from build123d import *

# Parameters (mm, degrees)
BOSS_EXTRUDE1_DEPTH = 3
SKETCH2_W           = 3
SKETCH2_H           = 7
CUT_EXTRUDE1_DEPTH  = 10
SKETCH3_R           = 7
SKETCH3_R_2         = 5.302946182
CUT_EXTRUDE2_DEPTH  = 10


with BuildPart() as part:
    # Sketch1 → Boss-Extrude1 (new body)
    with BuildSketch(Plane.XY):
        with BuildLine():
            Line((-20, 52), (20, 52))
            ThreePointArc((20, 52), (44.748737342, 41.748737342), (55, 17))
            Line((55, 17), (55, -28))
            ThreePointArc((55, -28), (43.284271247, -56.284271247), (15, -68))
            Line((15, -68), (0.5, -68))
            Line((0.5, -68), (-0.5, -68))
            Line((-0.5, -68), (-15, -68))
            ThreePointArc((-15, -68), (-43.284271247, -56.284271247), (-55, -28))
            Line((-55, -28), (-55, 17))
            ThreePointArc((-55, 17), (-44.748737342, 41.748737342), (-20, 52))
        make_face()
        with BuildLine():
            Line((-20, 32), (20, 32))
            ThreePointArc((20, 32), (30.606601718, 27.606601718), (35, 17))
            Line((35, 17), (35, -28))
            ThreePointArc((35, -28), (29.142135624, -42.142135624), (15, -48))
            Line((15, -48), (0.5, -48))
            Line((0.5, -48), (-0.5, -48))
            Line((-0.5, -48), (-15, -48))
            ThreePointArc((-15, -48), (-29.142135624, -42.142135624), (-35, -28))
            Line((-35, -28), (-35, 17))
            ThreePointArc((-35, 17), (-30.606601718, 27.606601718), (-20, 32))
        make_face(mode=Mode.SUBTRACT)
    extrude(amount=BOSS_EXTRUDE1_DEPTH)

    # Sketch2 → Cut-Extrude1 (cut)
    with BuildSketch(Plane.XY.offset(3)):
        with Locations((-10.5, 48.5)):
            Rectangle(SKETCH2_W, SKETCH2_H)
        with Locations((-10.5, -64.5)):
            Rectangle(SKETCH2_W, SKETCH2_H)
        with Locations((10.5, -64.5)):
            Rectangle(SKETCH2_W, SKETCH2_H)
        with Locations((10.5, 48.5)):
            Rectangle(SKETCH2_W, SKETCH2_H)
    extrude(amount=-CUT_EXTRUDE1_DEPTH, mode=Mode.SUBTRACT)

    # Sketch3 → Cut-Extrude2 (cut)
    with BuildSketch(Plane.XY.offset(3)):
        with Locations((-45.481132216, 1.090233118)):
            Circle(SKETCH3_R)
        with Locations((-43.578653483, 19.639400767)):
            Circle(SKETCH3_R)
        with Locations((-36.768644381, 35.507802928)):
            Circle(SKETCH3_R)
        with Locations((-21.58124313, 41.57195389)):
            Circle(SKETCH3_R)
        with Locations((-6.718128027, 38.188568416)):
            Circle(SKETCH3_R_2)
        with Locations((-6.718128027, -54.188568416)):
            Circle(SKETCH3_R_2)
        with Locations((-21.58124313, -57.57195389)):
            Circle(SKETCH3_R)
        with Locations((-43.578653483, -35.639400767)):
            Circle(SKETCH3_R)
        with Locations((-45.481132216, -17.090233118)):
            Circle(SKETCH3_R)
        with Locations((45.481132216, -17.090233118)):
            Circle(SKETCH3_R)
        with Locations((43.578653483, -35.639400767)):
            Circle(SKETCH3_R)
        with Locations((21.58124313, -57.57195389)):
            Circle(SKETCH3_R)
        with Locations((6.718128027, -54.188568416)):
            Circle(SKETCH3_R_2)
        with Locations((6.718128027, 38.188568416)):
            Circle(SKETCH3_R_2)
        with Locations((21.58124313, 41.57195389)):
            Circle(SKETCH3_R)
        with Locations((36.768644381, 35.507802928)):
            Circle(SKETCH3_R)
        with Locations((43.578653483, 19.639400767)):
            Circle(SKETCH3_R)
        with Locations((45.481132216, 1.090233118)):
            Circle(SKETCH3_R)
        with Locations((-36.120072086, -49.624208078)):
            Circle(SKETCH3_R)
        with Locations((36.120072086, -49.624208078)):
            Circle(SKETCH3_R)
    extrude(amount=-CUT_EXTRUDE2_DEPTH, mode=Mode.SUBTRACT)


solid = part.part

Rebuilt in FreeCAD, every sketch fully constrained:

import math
import FreeCAD as App
import Part
import Sketcher

V = App.Vector

doc = App.newDocument("Part")
body = doc.addObject("PartDesign::Body", "Body")

# Sketch on XY plane
sketch1 = doc.addObject("Sketcher::SketchObject", "Sketch")
body.addObject(sketch1)
sketch1.AttachmentSupport = (doc.XY_Plane, [""])
sketch1.MapMode = "FlatFace"
sketch1.addGeometry([
    Part.LineSegment(V(20, 52, 0), V(-20, 52, 0)),  # 0
    Part.ArcOfCircle(Part.Circle(V(-20, 17, 0), V(0, 0, 1), 35), math.radians(90), math.radians(180)),  # 1
    Part.LineSegment(V(-55, 17, 0), V(-55, -28, 0)),  # 2
    Part.ArcOfCircle(Part.Circle(V(-15, -28, 0), V(0, 0, 1), 40), math.radians(-180), math.radians(-90)),  # 3
    Part.LineSegment(V(-15, -68, 0), V(15, -68, 0)),  # 4
    Part.ArcOfCircle(Part.Circle(V(15, -28, 0), V(0, 0, 1), 40), math.radians(-90), math.radians(0)),  # 5
    Part.LineSegment(V(55, -28, 0), V(55, 17, 0)),  # 6
    Part.ArcOfCircle(Part.Circle(V(20, 17, 0), V(0, 0, 1), 35), math.radians(0), math.radians(90)),  # 7
    Part.LineSegment(V(-20, 32, 0), V(20, 32, 0)),  # 8
    Part.ArcOfCircle(Part.Circle(V(20, 17, 0), V(0, 0, 1), 15), math.radians(0), math.radians(90)),  # 9
    Part.LineSegment(V(35, 17, 0), V(35, -28, 0)),  # 10
    Part.ArcOfCircle(Part.Circle(V(15, -28, 0), V(0, 0, 1), 20), math.radians(-90), math.radians(0)),  # 11
    Part.LineSegment(V(15, -48, 0), V(-15, -48, 0)),  # 12
    Part.ArcOfCircle(Part.Circle(V(-15, -28, 0), V(0, 0, 1), 20), math.radians(180), math.radians(270)),  # 13
    Part.LineSegment(V(-35, -28, 0), V(-35, 17, 0)),  # 14
    Part.ArcOfCircle(Part.Circle(V(-20, 17, 0), V(0, 0, 1), 15), math.radians(90), math.radians(180)),  # 15
], False)
sketch1.addConstraint([
    Sketcher.Constraint("Tangent", 0, 2, 1, 1),
    Sketcher.Constraint("Tangent", 1, 2, 2, 1),
    Sketcher.Constraint("Tangent", 2, 2, 3, 1),
    Sketcher.Constraint("Tangent", 3, 2, 4, 1),
    Sketcher.Constraint("Tangent", 4, 2, 5, 1),
    Sketcher.Constraint("Tangent", 5, 2, 6, 1),
    Sketcher.Constraint("Tangent", 6, 2, 7, 1),
    Sketcher.Constraint("Tangent", 7, 2, 0, 1),
    Sketcher.Constraint("Tangent", 8, 2, 9, 2),
    Sketcher.Constraint("Tangent", 9, 1, 10, 1),
    Sketcher.Constraint("Tangent", 10, 2, 11, 2),
    Sketcher.Constraint("Tangent", 11, 1, 12, 1),
    Sketcher.Constraint("Tangent", 12, 2, 13, 2),
    Sketcher.Constraint("Tangent", 13, 1, 14, 1),
    Sketcher.Constraint("Tangent", 14, 2, 15, 2),
    Sketcher.Constraint("Tangent", 15, 1, 8, 1),
    Sketcher.Constraint("Horizontal", 0),
    Sketcher.Constraint("Vertical", 2),
    Sketcher.Constraint("Horizontal", 4),
    Sketcher.Constraint("Vertical", 6),
    Sketcher.Constraint("Horizontal", 8),
    Sketcher.Constraint("Vertical", 10),
    Sketcher.Constraint("Horizontal", 12),
    Sketcher.Constraint("Vertical", 14),
    Sketcher.Constraint("Coincident", 9, 3, 7, 3),
    Sketcher.Constraint("Coincident", 11, 3, 5, 3),
    Sketcher.Constraint("Coincident", 13, 3, 3, 3),
    Sketcher.Constraint("Equal", 3, 5),
    Sketcher.Constraint("Equal", 1, 7),
    Sketcher.Constraint("Equal", 9, 15),
    Sketcher.Constraint("Radius", 1, 35.0),
    Sketcher.Constraint("Radius", 3, 40.0),
    Sketcher.Constraint("Radius", 9, 15.0),
    Sketcher.Constraint("DistanceX", 0, 2, 0, 1, 40.0),
    Sketcher.Constraint("DistanceY", 2, 2, 2, 1, 45.0),
    Sketcher.Constraint("DistanceX", 1, 3, -1, 1, 20.0),
    Sketcher.Constraint("DistanceY", -1, 1, 1, 3, 17.0),
])
pad1 = doc.addObject("PartDesign::Pad", "Pad")
body.addObject(pad1)
pad1.Profile = sketch1
pad1.Length = 3

# Sketch on XY plane
sketch2 = doc.addObject("Sketcher::SketchObject", "Sketch001")
body.addObject(sketch2)
sketch2.AttachmentSupport = (doc.XY_Plane, [""])
sketch2.MapMode = "FlatFace"
sketch2.AttachmentOffset = App.Placement(V(0, 0, 3), App.Rotation())
sketch2.addGeometry([
    Part.LineSegment(V(-12, 52, 0), V(-12, 45, 0)),  # 0
    Part.LineSegment(V(-12, 45, 0), V(-9, 45, 0)),  # 1
    Part.LineSegment(V(-9, 45, 0), V(-9, 52, 0)),  # 2
    Part.LineSegment(V(-9, 52, 0), V(-12, 52, 0)),  # 3
    Part.LineSegment(V(-12, -61, 0), V(-12, -68, 0)),  # 4
    Part.LineSegment(V(-12, -68, 0), V(-9, -68, 0)),  # 5
    Part.LineSegment(V(-9, -68, 0), V(-9, -61, 0)),  # 6
    Part.LineSegment(V(-9, -61, 0), V(-12, -61, 0)),  # 7
    Part.LineSegment(V(9, -61, 0), V(9, -68, 0)),  # 8
    Part.LineSegment(V(9, -68, 0), V(12, -68, 0)),  # 9
    Part.LineSegment(V(12, -68, 0), V(12, -61, 0)),  # 10
    Part.LineSegment(V(12, -61, 0), V(9, -61, 0)),  # 11
    Part.LineSegment(V(9, 52, 0), V(9, 45, 0)),  # 12
    Part.LineSegment(V(9, 45, 0), V(12, 45, 0)),  # 13
    Part.LineSegment(V(12, 45, 0), V(12, 52, 0)),  # 14
    Part.LineSegment(V(12, 52, 0), V(9, 52, 0)),  # 15
], False)
sketch2.addConstraint([
    Sketcher.Constraint("Coincident", 0, 2, 1, 1),
    Sketcher.Constraint("Coincident", 1, 2, 2, 1),
    Sketcher.Constraint("Coincident", 2, 2, 3, 1),
    Sketcher.Constraint("Coincident", 3, 2, 0, 1),
    Sketcher.Constraint("Coincident", 4, 2, 5, 1),
    Sketcher.Constraint("Coincident", 5, 2, 6, 1),
    Sketcher.Constraint("Coincident", 6, 2, 7, 1),
    Sketcher.Constraint("Coincident", 7, 2, 4, 1),
    Sketcher.Constraint("Coincident", 8, 2, 9, 1),
    Sketcher.Constraint("Coincident", 9, 2, 10, 1),
    Sketcher.Constraint("Coincident", 10, 2, 11, 1),
    Sketcher.Constraint("Coincident", 11, 2, 8, 1),
    Sketcher.Constraint("Coincident", 12, 2, 13, 1),
    Sketcher.Constraint("Coincident", 13, 2, 14, 1),
    Sketcher.Constraint("Coincident", 14, 2, 15, 1),
    Sketcher.Constraint("Coincident", 15, 2, 12, 1),
    Sketcher.Constraint("Vertical", 0),
    Sketcher.Constraint("Horizontal", 1),
    Sketcher.Constraint("Vertical", 2),
    Sketcher.Constraint("Horizontal", 3),
    Sketcher.Constraint("Vertical", 4),
    Sketcher.Constraint("Horizontal", 5),
    Sketcher.Constraint("Vertical", 6),
    Sketcher.Constraint("Horizontal", 7),
    Sketcher.Constraint("Vertical", 8),
    Sketcher.Constraint("Horizontal", 9),
    Sketcher.Constraint("Vertical", 10),
    Sketcher.Constraint("Horizontal", 11),
    Sketcher.Constraint("Vertical", 12),
    Sketcher.Constraint("Horizontal", 13),
    Sketcher.Constraint("Vertical", 14),
    Sketcher.Constraint("Horizontal", 15),
    Sketcher.Constraint("Symmetric", 5, 2, 8, 2, -2),
    Sketcher.Constraint("Symmetric", 7, 2, 10, 2, -2),
    Sketcher.Constraint("Symmetric", 1, 2, 12, 2, -2),
    Sketcher.Constraint("Symmetric", 3, 2, 14, 2, -2),
    Sketcher.Constraint("Vertical", 3, 2, 4, 2),
    Sketcher.Constraint("Vertical", 2, 2, 5, 2),
    Sketcher.Constraint("Equal", 2, 4),
    Sketcher.Constraint("DistanceX", 1, 1, 1, 2, 3.0),
    Sketcher.Constraint("DistanceY", 0, 2, 0, 1, 7.0),
    Sketcher.Constraint("DistanceX", 0, 2, -1, 1, 12.0),
    Sketcher.Constraint("DistanceY", -1, 1, 0, 2, 45.0),
    Sketcher.Constraint("DistanceY", 4, 2, -1, 1, 68.0),
])
pocket1 = doc.addObject("PartDesign::Pocket", "Pocket")
body.addObject(pocket1)
pocket1.Profile = sketch2
pocket1.Length = 10

# Sketch on XY plane
sketch3 = doc.addObject("Sketcher::SketchObject", "Sketch002")
body.addObject(sketch3)
sketch3.AttachmentSupport = (doc.XY_Plane, [""])
sketch3.MapMode = "FlatFace"
sketch3.AttachmentOffset = App.Placement(V(0, 0, 3), App.Rotation())
sketch3.addGeometry([
    Part.Circle(V(-45, 1, 0), V(0, 0, 1), 7),  # 0
    Part.Circle(V(-44, 20, 0), V(0, 0, 1), 7),  # 1
    Part.Circle(V(-37, 36, 0), V(0, 0, 1), 7),  # 2
    Part.Circle(V(-22, 42, 0), V(0, 0, 1), 7),  # 3
    Part.Circle(V(-7, 38, 0), V(0, 0, 1), 5),  # 4
    Part.Circle(V(-7, -54, 0), V(0, 0, 1), 5),  # 5
    Part.Circle(V(-22, -58, 0), V(0, 0, 1), 7),  # 6
    Part.Circle(V(-44, -36, 0), V(0, 0, 1), 7),  # 7
    Part.Circle(V(-45, -17, 0), V(0, 0, 1), 7),  # 8
    Part.Circle(V(45, -17, 0), V(0, 0, 1), 7),  # 9
    Part.Circle(V(44, -36, 0), V(0, 0, 1), 7),  # 10
    Part.Circle(V(22, -58, 0), V(0, 0, 1), 7),  # 11
    Part.Circle(V(7, -54, 0), V(0, 0, 1), 5),  # 12
    Part.Circle(V(7, 38, 0), V(0, 0, 1), 5),  # 13
    Part.Circle(V(22, 42, 0), V(0, 0, 1), 7),  # 14
    Part.Circle(V(37, 36, 0), V(0, 0, 1), 7),  # 15
    Part.Circle(V(44, 20, 0), V(0, 0, 1), 7),  # 16
    Part.Circle(V(45, 1, 0), V(0, 0, 1), 7),  # 17
    Part.Circle(V(-36, -50, 0), V(0, 0, 1), 7),  # 18
    Part.Circle(V(36, -50, 0), V(0, 0, 1), 7),  # 19
], False)
sketch3.addConstraint([
    Sketcher.Constraint("Equal", 0, 1),
    Sketcher.Constraint("Equal", 1, 2),
    Sketcher.Constraint("Equal", 2, 3),
    Sketcher.Constraint("Equal", 4, 5),
    Sketcher.Constraint("Equal", 3, 6),
    Sketcher.Constraint("Equal", 6, 7),
    Sketcher.Constraint("Equal", 7, 8),
    Sketcher.Constraint("Equal", 8, 9),
    Sketcher.Constraint("Equal", 9, 10),
    Sketcher.Constraint("Equal", 10, 11),
    Sketcher.Constraint("Equal", 5, 12),
    Sketcher.Constraint("Equal", 12, 13),
    Sketcher.Constraint("Equal", 11, 14),
    Sketcher.Constraint("Equal", 14, 15),
    Sketcher.Constraint("Equal", 15, 16),
    Sketcher.Constraint("Equal", 16, 17),
    Sketcher.Constraint("Equal", 17, 18),
    Sketcher.Constraint("Equal", 18, 19),
    Sketcher.Constraint("Symmetric", 8, 3, 9, 3, -2),
    Sketcher.Constraint("Symmetric", 7, 3, 10, 3, -2),
    Sketcher.Constraint("Symmetric", 6, 3, 11, 3, -2),
    Sketcher.Constraint("Symmetric", 5, 3, 12, 3, -2),
    Sketcher.Constraint("Symmetric", 4, 3, 13, 3, -2),
    Sketcher.Constraint("Symmetric", 3, 3, 14, 3, -2),
    Sketcher.Constraint("Symmetric", 2, 3, 15, 3, -2),
    Sketcher.Constraint("Symmetric", 1, 3, 16, 3, -2),
    Sketcher.Constraint("Symmetric", 0, 3, 17, 3, -2),
    Sketcher.Constraint("Symmetric", 18, 3, 19, 3, -2),
    Sketcher.Constraint("Vertical", 4, 3, 5, 3),
    Sketcher.Constraint("Vertical", 3, 3, 6, 3),
    Sketcher.Constraint("Vertical", 1, 3, 7, 3),
    Sketcher.Constraint("Vertical", 0, 3, 8, 3),
    Sketcher.Constraint("Diameter", 0, 14.0),
    Sketcher.Constraint("Diameter", 4, 10.605892),
    Sketcher.Constraint("DistanceY", -1, 1, 1, 3, 19.639401),
    Sketcher.Constraint("DistanceY", 7, 3, -1, 1, 35.639401),
    Sketcher.Constraint("DistanceX", 2, 3, 3, 3, 15.187401),
    Sketcher.Constraint("DistanceY", 5, 3, 0, 3, 55.278802),
    Sketcher.Constraint("DistanceY", 9, 3, 4, 3, 55.278802),
    Sketcher.Constraint("DistanceX", 18, 3, 12, 3, 42.8382),
    Sketcher.Constraint("DistanceX", 4, 3, -1, 1, 6.718128),
    Sketcher.Constraint("DistanceY", -1, 1, 4, 3, 38.188568),
    Sketcher.Constraint("DistanceY", 5, 3, -1, 1, 54.188568),
    Sketcher.Constraint("DistanceY", 18, 3, -1, 1, 49.624208),
    Sketcher.Constraint("DistanceX", 0, 3, 1, 3, 1.902479),
    Sketcher.Constraint("DistanceX", 1, 3, 2, 3, 6.810009),
    Sketcher.Constraint("DistanceY", 0, 3, 2, 3, 34.41757),
    Sketcher.Constraint("DistanceY", 2, 3, 3, 3, 6.064151),
    Sketcher.Constraint("DistanceY", 6, 3, 8, 3, 40.481721),
    Sketcher.Constraint("DistanceX", 5, 3, 9, 3, 52.19926),
])
pocket2 = doc.addObject("PartDesign::Pocket", "Pocket001")
body.addObject(pocket2)
pocket2.Profile = sketch3
pocket2.Length = 10

doc.recompute()
